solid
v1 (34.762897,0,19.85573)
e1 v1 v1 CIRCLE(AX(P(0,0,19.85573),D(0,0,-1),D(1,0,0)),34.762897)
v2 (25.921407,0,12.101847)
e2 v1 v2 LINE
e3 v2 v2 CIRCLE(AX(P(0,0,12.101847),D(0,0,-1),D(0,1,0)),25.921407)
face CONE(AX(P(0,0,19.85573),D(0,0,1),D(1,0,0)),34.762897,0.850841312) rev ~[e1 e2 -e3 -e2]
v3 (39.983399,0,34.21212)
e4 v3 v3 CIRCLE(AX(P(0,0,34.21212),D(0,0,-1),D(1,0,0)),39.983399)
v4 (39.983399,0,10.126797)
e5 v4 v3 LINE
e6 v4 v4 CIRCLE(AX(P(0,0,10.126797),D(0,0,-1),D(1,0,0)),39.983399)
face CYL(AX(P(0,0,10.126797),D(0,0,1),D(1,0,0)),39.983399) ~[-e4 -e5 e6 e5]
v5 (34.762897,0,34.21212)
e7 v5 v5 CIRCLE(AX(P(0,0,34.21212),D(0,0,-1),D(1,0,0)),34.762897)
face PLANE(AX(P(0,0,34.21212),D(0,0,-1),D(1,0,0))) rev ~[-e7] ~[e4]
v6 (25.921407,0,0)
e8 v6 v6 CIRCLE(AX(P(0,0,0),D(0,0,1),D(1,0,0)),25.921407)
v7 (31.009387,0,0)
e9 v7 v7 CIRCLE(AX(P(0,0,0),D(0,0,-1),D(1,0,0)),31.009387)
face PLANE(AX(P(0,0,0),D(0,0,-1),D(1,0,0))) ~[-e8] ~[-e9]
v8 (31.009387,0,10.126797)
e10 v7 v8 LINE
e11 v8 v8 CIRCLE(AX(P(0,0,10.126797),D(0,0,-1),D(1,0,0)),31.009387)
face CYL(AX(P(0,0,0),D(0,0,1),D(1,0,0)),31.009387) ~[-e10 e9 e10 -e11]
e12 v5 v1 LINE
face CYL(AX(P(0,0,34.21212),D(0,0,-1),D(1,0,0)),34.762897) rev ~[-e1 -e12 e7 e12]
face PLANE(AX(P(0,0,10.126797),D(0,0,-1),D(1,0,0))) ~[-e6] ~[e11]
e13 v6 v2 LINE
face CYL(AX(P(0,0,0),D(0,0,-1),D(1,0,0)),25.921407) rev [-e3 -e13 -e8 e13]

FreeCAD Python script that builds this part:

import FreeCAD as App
import Part
import Sketcher

doc = App.newDocument("Part")
body = doc.addObject("PartDesign::Body", "Body")

# Sketch on XZ plane
sketch1 = body.newObject("Sketcher::SketchObject", "Sketch")
sketch1.AttachmentSupport = (doc.getObject("XZ_Plane"), [""])
sketch1.MapMode = "FlatFace"
sketch1.addGeometry([
    Part.LineSegment(App.Vector(0, 10, 0), App.Vector(0, 0, 0)),  # 0
    Part.LineSegment(App.Vector(0, 0, 0), App.Vector(31, 0, 0)),  # 1
    Part.LineSegment(App.Vector(31, 0, 0), App.Vector(31, 10, 0)),  # 2
    Part.LineSegment(App.Vector(31, 10, 0), App.Vector(40, 10, 0)),  # 3
    Part.LineSegment(App.Vector(40, 10, 0), App.Vector(40, 34, 0)),  # 4
    Part.LineSegment(App.Vector(40, 34, 0), App.Vector(35, 34, 0)),  # 5
    Part.LineSegment(App.Vector(35, 34, 0), App.Vector(35, 20, 0)),  # 6
    Part.LineSegment(App.Vector(35, 20, 0), App.Vector(24, 10, 0)),  # 7
    Part.LineSegment(App.Vector(24, 10, 0), App.Vector(0, 10, 0)),  # 8
], False)
sketch1.addConstraint([
    Sketcher.Constraint("Coincident", 0, 2, 1, 1),
    Sketcher.Constraint("Coincident", 1, 2, 2, 1),
    Sketcher.Constraint("Coincident", 2, 2, 3, 1),
    Sketcher.Constraint("Coincident", 3, 2, 4, 1),
    Sketcher.Constraint("Coincident", 4, 2, 5, 1),
    Sketcher.Constraint("Coincident", 5, 2, 6, 1),
    Sketcher.Constraint("Coincident", 6, 2, 7, 1),
    Sketcher.Constraint("Coincident", 7, 2, 8, 1),
    Sketcher.Constraint("Coincident", 8, 2, 0, 1),
    Sketcher.Constraint("Vertical", 0),
    Sketcher.Constraint("Horizontal", 1),
    Sketcher.Constraint("Vertical", 2),
    Sketcher.Constraint("Horizontal", 3),
    Sketcher.Constraint("Vertical", 4),
    Sketcher.Constraint("Horizontal", 5),
    Sketcher.Constraint("Vertical", 6),
    Sketcher.Constraint("Horizontal", 8),
    Sketcher.Constraint("Coincident", 0, 2, -1, 1),
    Sketcher.Constraint("Horizontal", 3, 2, 7, 2),
    Sketcher.Constraint("DistanceX", 5, 2, 5, 1, 5.220502),
    Sketcher.Constraint("DistanceX", 3, 1, 3, 2, 8.974012),
    Sketcher.Constraint("DistanceY", 6, 2, 6, 1, 14.35639),
    Sketcher.Constraint("DistanceX", -1, 1, 3, 2, 39.983399),
    Sketcher.Constraint("Distance", 7, 14.75532),
    Sketcher.Constraint("DistanceX", 8, 2, 8, 1, 23.669325),
    Sketcher.Constraint("DistanceY", 0, 2, 0, 1, 10.126797),
])
revolution = body.newObject("PartDesign::Revolution", "Revolution")
revolution.Profile = sketch1
revolution.ReferenceAxis = (sketch1, ["V_Axis"])
revolution.Angle = 360

# Sketch on XY plane
sketch2 = body.newObject("Sketcher::SketchObject", "Sketch001")
sketch2.AttachmentSupport = (doc.getObject("XY_Plane"), [""])
sketch2.MapMode = "FlatFace"
sketch2.addGeometry(Part.Circle(App.Vector(0, 0, 0), App.Vector(0, 0, 1), 26), False)
sketch2.addConstraint([
    Sketcher.Constraint("Coincident", 0, 3, -1, 1),
    Sketcher.Constraint("Diameter", 0, 51.842814),
])
pocket1 = body.newObject("PartDesign::Pocket", "Pocket")
pocket1.Profile = sketch2
pocket1.Length = 25
pocket1.Reversed = True

doc.recompute()
